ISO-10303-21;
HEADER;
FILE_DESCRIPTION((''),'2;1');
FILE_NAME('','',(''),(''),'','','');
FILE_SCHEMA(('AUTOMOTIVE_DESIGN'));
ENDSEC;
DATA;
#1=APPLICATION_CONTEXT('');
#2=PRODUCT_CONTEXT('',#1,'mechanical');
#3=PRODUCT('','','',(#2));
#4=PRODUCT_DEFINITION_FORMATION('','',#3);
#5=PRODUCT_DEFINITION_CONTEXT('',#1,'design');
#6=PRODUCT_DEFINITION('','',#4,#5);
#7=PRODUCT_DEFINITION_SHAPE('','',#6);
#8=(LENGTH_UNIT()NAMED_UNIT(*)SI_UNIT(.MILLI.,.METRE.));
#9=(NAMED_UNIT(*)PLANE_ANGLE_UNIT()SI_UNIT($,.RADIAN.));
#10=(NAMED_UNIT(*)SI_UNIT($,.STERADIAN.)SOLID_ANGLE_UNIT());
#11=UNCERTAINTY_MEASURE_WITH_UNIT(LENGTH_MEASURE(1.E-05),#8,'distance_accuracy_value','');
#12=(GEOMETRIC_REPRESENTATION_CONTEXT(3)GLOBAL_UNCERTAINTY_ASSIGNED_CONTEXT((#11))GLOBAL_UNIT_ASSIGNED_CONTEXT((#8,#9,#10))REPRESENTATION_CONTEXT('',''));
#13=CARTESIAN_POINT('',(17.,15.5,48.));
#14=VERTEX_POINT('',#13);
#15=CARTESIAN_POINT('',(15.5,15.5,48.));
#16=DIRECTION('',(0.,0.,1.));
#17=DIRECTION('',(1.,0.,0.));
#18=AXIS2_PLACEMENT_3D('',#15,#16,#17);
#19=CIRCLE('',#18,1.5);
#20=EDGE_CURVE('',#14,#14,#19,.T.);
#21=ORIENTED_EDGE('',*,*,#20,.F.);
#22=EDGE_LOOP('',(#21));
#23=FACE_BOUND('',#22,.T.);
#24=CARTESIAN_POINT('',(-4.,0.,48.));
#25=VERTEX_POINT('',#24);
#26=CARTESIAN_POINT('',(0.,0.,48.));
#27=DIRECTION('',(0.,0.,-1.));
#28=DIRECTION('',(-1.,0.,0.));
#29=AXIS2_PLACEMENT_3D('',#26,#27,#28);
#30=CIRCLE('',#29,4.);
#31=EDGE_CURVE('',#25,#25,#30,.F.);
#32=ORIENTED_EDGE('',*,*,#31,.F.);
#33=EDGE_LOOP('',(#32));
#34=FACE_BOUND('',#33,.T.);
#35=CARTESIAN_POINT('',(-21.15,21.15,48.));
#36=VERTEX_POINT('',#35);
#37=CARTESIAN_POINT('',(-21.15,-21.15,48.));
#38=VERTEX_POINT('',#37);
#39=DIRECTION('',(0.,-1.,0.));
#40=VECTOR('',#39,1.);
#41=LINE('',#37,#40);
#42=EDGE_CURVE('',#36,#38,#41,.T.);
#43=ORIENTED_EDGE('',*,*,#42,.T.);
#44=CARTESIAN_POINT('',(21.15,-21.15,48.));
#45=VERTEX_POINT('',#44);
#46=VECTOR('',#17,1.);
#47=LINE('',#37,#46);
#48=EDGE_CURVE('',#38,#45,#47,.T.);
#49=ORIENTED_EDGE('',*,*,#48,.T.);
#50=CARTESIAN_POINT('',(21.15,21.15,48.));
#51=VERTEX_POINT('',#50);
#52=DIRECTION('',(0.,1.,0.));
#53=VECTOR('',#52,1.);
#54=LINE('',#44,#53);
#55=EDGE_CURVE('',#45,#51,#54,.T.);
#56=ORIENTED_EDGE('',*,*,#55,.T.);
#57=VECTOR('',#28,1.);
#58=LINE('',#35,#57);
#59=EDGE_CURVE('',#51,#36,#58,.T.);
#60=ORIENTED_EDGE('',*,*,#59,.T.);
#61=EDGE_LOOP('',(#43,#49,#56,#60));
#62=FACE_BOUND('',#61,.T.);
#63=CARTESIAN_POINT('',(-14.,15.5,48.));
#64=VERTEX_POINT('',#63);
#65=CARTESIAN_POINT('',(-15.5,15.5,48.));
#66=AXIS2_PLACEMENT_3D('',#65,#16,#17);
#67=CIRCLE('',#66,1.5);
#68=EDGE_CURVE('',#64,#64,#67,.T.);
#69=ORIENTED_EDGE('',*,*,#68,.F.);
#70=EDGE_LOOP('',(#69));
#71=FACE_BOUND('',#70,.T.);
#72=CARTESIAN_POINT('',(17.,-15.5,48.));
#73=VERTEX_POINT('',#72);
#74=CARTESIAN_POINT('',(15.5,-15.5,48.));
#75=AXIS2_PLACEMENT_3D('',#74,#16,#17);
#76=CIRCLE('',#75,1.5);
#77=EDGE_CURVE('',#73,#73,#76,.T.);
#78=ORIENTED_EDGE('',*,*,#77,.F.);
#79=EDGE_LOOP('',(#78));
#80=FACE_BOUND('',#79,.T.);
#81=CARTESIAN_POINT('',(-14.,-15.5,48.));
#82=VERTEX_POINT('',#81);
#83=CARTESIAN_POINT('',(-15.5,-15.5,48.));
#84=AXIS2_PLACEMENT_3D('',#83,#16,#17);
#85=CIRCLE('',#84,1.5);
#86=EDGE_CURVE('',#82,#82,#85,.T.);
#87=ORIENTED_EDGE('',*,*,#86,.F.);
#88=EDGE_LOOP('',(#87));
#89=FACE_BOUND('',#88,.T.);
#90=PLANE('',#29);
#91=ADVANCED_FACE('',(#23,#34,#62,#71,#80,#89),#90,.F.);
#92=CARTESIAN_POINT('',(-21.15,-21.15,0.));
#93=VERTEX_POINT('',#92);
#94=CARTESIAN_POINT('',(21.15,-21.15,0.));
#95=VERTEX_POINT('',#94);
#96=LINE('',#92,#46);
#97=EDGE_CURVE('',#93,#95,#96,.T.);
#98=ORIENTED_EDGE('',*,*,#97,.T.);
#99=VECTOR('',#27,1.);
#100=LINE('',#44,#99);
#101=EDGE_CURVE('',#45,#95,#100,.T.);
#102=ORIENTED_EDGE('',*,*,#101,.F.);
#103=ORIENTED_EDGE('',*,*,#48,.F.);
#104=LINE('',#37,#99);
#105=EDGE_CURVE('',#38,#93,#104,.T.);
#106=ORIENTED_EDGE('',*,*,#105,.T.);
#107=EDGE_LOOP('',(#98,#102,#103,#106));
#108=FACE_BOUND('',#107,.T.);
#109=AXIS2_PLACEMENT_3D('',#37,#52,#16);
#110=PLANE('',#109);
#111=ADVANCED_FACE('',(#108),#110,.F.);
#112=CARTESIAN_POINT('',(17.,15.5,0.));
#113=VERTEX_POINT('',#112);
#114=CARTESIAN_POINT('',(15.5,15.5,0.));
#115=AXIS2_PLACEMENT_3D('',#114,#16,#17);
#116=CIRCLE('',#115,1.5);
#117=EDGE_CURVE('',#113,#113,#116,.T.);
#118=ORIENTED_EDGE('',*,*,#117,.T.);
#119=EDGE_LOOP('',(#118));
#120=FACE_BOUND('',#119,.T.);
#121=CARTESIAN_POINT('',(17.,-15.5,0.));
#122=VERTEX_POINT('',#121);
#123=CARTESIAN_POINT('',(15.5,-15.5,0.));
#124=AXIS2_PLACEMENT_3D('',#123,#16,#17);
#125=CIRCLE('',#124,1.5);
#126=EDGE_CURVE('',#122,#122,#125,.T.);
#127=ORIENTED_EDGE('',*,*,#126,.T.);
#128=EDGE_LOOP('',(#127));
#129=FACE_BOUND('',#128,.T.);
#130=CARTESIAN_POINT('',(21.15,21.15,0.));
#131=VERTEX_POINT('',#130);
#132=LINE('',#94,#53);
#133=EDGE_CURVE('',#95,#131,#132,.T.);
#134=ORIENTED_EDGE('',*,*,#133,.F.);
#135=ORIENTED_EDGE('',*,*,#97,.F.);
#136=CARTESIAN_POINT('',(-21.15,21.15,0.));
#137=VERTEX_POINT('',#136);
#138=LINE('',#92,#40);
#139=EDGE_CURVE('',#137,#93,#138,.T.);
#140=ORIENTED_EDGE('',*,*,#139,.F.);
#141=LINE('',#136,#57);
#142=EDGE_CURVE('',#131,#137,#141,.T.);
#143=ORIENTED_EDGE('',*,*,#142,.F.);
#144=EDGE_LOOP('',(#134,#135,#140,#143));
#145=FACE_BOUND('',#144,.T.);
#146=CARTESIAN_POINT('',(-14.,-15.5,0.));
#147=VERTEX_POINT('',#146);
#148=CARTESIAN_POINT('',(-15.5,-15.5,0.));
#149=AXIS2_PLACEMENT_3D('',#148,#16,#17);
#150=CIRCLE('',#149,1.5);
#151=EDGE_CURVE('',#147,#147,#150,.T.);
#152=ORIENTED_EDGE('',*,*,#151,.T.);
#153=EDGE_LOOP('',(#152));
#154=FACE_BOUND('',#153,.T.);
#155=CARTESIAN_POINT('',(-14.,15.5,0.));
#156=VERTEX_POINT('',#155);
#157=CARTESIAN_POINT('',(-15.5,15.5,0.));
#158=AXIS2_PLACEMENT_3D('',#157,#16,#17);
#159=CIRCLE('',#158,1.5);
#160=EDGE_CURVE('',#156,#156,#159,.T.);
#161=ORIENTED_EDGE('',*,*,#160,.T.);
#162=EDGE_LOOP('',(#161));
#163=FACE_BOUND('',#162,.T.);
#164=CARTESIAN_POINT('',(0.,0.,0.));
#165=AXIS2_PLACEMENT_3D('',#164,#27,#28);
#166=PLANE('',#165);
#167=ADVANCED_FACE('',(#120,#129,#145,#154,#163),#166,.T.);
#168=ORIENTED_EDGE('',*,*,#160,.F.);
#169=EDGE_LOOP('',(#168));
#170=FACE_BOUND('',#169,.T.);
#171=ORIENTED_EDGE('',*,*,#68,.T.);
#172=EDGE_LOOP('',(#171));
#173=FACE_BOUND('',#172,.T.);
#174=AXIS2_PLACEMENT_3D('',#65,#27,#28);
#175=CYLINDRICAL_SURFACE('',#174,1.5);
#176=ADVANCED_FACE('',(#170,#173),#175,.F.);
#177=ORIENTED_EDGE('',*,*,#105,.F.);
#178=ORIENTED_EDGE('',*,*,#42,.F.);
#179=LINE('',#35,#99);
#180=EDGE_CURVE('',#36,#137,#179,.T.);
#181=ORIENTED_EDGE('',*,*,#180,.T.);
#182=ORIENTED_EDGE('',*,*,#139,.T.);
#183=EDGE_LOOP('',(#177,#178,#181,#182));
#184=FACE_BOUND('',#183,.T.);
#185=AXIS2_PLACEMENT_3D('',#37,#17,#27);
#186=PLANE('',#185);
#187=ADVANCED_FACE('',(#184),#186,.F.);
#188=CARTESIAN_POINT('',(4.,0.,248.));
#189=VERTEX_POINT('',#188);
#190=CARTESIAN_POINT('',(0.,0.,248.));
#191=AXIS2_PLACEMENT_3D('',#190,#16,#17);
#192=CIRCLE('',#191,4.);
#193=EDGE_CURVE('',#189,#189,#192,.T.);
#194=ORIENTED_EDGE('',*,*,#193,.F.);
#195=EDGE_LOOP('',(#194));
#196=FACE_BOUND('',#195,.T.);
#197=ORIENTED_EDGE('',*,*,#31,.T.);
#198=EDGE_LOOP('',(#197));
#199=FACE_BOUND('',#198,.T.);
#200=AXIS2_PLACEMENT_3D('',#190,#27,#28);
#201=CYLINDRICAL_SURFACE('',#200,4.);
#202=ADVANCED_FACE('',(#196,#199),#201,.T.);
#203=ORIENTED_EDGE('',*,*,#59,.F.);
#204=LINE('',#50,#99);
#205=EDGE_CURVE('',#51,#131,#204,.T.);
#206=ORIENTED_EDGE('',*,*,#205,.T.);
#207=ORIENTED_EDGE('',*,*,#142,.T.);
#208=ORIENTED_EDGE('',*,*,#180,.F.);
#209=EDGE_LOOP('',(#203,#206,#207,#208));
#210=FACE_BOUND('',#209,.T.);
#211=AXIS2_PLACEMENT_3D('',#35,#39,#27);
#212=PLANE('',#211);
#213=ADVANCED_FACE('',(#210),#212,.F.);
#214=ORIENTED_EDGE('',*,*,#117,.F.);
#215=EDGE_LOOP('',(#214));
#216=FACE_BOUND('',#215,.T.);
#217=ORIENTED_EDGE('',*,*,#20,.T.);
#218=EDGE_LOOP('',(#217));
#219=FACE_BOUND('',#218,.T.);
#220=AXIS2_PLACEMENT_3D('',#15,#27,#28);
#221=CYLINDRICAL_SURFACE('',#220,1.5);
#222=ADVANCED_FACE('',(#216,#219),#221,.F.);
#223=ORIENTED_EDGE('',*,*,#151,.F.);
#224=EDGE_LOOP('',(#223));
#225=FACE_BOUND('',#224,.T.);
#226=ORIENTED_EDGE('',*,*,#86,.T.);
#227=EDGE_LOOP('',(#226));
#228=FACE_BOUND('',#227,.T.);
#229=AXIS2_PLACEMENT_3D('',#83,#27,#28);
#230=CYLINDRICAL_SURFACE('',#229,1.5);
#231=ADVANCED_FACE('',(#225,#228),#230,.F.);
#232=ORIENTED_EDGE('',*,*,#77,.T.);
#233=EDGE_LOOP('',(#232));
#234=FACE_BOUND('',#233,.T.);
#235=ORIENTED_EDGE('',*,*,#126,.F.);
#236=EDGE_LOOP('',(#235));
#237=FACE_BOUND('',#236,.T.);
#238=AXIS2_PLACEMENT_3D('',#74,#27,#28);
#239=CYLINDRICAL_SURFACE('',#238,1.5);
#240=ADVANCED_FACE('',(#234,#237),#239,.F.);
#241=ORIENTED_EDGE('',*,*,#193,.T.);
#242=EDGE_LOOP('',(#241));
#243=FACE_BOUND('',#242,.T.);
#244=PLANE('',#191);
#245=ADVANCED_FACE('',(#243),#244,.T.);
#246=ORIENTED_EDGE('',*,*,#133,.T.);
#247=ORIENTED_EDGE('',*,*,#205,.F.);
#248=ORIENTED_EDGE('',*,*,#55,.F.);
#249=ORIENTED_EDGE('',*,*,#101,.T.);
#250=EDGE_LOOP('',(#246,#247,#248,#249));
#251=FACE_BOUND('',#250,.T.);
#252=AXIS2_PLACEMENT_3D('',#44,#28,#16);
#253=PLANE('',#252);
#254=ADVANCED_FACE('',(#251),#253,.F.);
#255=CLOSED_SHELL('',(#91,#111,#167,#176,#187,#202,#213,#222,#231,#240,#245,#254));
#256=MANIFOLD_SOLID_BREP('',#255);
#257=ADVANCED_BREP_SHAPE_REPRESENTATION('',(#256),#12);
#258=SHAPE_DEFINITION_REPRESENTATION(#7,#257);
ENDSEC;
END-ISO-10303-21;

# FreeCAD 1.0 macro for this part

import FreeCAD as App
import Part
import Sketcher
from FreeCAD import Vector


def add_polygon(sketch, points):
    """Adds a closed chain of lines whose ends are joined by coincident constraints."""
    first, n = sketch.GeometryCount, len(points)
    for a, b in zip(points, points[1:] + points[:1]):
        sketch.addGeometry(Part.LineSegment(App.Vector(*a, 0), App.Vector(*b, 0)), False)
    for i in range(n):
        sketch.addConstraint(Sketcher.Constraint("Coincident", first + i, 2, first + (i + 1) % n, 1))

doc = App.newDocument("Part")
params = doc.addObject("Spreadsheet::Sheet", "Params")
for row, (alias, value) in enumerate([
    ("sketch1_diameter", "3 mm"),
    ("sketch1_width", "42.3 mm"),
    ("pad1_length", "48 mm"),
    ("sketch2_diameter", "8 mm"),
    ("pad2_length", "200 mm"),
], start=1):
    params.set(f"A{row}", alias)
    params.set(f"B{row}", "=" + value)
    params.setAlias(f"B{row}", alias)

body = doc.addObject("PartDesign::Body", "Body")

# Sketch on XY plane
sketch1 = body.newObject("Sketcher::SketchObject", "Sketch")
sketch1.AttachmentSupport = (doc.getObject("XY_Plane"), [""])
sketch1.MapMode = "FlatFace"
add_polygon(sketch1, [(-21.1, 21.1), (-21.1, -21.1), (21.1, -21.1), (21.1, 21.1)])  # lines 0-3
sketch1.addGeometry(Part.Circle(Vector(-15.5, -15.5, 0), Vector(0, 0, 1), 1.5), False)  # 4
sketch1.addGeometry(Part.Circle(Vector(15.5, -15.5, 0), Vector(0, 0, 1), 1.5), False)  # 5
sketch1.addGeometry(Part.Circle(Vector(-15.5, 15.5, 0), Vector(0, 0, 1), 1.5), False)  # 6
sketch1.addGeometry(Part.Circle(Vector(15.5, 15.5, 0), Vector(0, 0, 1), 1.5), False)  # 7
sketch1.addConstraint(Sketcher.Constraint("Vertical", 0))
sketch1.addConstraint(Sketcher.Constraint("Horizontal", 1))
sketch1.addConstraint(Sketcher.Constraint("Vertical", 2))
sketch1.addConstraint(Sketcher.Constraint("Horizontal", 3))
sketch1.addConstraint(Sketcher.Constraint("Equal", 4, 5))
sketch1.addConstraint(Sketcher.Constraint("Equal", 5, 6))
sketch1.addConstraint(Sketcher.Constraint("Equal", 6, 7))
sketch1.addConstraint(Sketcher.Constraint("Symmetric", 5, 3, 6, 3, -1, 1))
sketch1.addConstraint(Sketcher.Constraint("Symmetric", 4, 3, 7, 3, -1, 1))
sketch1.addConstraint(Sketcher.Constraint("Symmetric", 0, 2, 2, 2, -1, 1))
sketch1.addConstraint(Sketcher.Constraint("Symmetric", 4, 3, 5, 3, -2))
sketch1.addConstraint(Sketcher.Constraint("Equal", 3, 0))
sketch1.addConstraint(Sketcher.Constraint("Diameter", 4, 3.0))
sketch1.addConstraint(Sketcher.Constraint("DistanceX", 1, 1, 1, 2, 42.3))
sketch1.addConstraint(Sketcher.Constraint("DistanceX", 4, 3, 5, 3, 31.0))
sketch1.addConstraint(Sketcher.Constraint("DistanceY", 4, 3, 6, 3, 31.0))
sketch1.setExpression("Constraints[16]", "Params.sketch1_diameter")
sketch1.setExpression("Constraints[17]", "Params.sketch1_width")
pad1 = body.newObject("PartDesign::Pad", "Pad")
pad1.Profile = sketch1
pad1.setExpression("Length", "Params.pad1_length")

# Sketch on XY plane
sketch2 = body.newObject("Sketcher::SketchObject", "Sketch001")
sketch2.AttachmentSupport = (doc.getObject("XY_Plane"), [""])
sketch2.MapMode = "FlatFace"
sketch2.AttachmentOffset = App.Placement(Vector(0, 0, 48), App.Rotation())
sketch2.addGeometry(Part.Circle(Vector(0, 0, 0), Vector(0, 0, 1), 4), False)
sketch2.addConstraint(Sketcher.Constraint("Coincident", 0, 3, -1, 1))
sketch2.addConstraint(Sketcher.Constraint("Diameter", 0, 8.0))
sketch2.setExpression("Constraints[1]", "Params.sketch2_diameter")
pad2 = body.newObject("PartDesign::Pad", "Pad001")
pad2.Profile = sketch2
pad2.setExpression("Length", "Params.pad2_length")

doc.recompute()
